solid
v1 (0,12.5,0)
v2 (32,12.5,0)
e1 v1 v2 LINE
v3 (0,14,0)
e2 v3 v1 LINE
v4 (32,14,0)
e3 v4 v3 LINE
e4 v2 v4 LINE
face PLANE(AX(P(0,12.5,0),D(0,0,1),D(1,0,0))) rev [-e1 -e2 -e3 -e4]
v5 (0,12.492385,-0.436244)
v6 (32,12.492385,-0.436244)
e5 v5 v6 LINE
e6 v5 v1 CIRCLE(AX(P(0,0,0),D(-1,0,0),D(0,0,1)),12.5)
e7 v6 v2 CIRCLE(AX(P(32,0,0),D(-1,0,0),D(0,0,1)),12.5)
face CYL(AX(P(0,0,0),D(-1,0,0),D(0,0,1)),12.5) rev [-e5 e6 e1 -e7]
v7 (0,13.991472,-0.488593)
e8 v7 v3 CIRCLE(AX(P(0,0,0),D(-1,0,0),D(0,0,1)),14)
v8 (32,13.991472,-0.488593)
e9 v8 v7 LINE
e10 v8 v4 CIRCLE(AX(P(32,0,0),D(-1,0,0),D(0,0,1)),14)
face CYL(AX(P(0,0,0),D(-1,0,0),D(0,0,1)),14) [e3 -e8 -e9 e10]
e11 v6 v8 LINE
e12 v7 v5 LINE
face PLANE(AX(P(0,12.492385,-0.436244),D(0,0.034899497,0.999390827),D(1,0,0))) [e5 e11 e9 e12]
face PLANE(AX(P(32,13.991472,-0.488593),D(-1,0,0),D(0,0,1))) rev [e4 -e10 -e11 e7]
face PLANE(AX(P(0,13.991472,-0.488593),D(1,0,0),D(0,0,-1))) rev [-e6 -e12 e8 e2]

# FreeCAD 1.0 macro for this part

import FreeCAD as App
import Part
import Sketcher
from FreeCAD import Vector


def add_polygon(sketch, points):
    """Adds a closed chain of lines whose ends are joined by coincident constraints."""
    first, n = sketch.GeometryCount, len(points)
    for a, b in zip(points, points[1:] + points[:1]):
        sketch.addGeometry(Part.LineSegment(App.Vector(*a, 0), App.Vector(*b, 0)), False)
    for i in range(n):
        sketch.addConstraint(Sketcher.Constraint("Coincident", first + i, 2, first + (i + 1) % n, 1))

doc = App.newDocument("Part")
params = doc.addObject("Spreadsheet::Sheet", "Params")
for row, (alias, value) in enumerate([
    ("sketch1_width", "32 mm"),
    ("sketch1_height", "1.5 mm"),
    ("revolution_angle", "358 deg"),
], start=1):
    params.set(f"A{row}", alias)
    params.set(f"B{row}", "=" + value)
    params.setAlias(f"B{row}", alias)

body = doc.addObject("PartDesign::Body", "Body")

# Sketch on XY plane
sketch1 = body.newObject("Sketcher::SketchObject", "Sketch")
sketch1.AttachmentSupport = (doc.getObject("XY_Plane"), [""])
sketch1.MapMode = "FlatFace"
add_polygon(sketch1, [(0, 14), (0, 12.5), (32, 12.5), (32, 14)])  # lines 0-3
sketch1.addConstraint([
    Sketcher.Constraint("Vertical", 0),
    Sketcher.Constraint("Horizontal", 1),
    Sketcher.Constraint("Vertical", 2),
    Sketcher.Constraint("Horizontal", 3),
    Sketcher.Constraint("PointOnObject", 0, 2, -2),
    Sketcher.Constraint("DistanceX", 1, 1, 1, 2, 32.0),
    Sketcher.Constraint("DistanceY", 0, 2, 0, 1, 1.5),
    Sketcher.Constraint("DistanceY", -1, 1, 2, 2, 14.0),
])
sketch1.setExpression("Constraints[9]", "Params.sketch1_width")
sketch1.setExpression("Constraints[10]", "Params.sketch1_height")
revolution = body.newObject("PartDesign::Revolution", "Revolution")
revolution.Profile = sketch1
revolution.ReferenceAxis = (sketch1, ["H_Axis"])
revolution.setExpression("Angle", "Params.revolution_angle")

doc.recompute()
